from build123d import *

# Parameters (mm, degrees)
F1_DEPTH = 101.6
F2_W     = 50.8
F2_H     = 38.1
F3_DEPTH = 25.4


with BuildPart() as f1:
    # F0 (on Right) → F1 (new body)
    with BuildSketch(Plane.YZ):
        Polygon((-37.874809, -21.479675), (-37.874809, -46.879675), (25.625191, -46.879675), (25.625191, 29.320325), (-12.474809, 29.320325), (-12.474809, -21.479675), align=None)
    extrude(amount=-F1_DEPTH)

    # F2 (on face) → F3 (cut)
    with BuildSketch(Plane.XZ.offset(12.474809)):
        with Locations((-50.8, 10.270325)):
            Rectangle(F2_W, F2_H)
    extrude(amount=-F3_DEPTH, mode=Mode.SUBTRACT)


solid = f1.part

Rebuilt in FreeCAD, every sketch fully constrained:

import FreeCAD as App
import Part
import Sketcher
from FreeCAD import Vector
Q = App.Units.Quantity

doc = App.newDocument("Part")
params = doc.addObject("Spreadsheet::Sheet", "Params")
for row, (alias, value) in enumerate([
    ("sketch1_width", "1 in"),
    ("sketch1_height", "3 in"),
    ("sketch1_width2", "2.5 in"),
    ("pad1_length", "4 in"),
    ("sketch2_width", "2 in"),
    ("sketch2_height", "1.5 in"),
    ("pocket1_length", "1 in"),
], start=1):
    params.set(f"A{row}", alias)
    params.set(f"B{row}", "=" + value)
    params.setAlias(f"B{row}", alias)

body = doc.addObject("PartDesign::Body", "Body")

# Sketch on YZ plane
sketch1 = body.newObject("Sketcher::SketchObject", "Sketch")
sketch1.AttachmentSupport = (doc.getObject("YZ_Plane"), [""])
sketch1.MapMode = "FlatFace"
sketch1.addGeometry(Part.LineSegment(Vector(-38, -21, 0), Vector(-38, -47, 0)), False)
sketch1.addGeometry(Part.LineSegment(Vector(-38, -47, 0), Vector(26, -47, 0)), False)
sketch1.addGeometry(Part.LineSegment(Vector(26, -47, 0), Vector(26, 29, 0)), False)
sketch1.addGeometry(Part.LineSegment(Vector(26, 29, 0), Vector(-12, 29, 0)), False)
sketch1.addGeometry(Part.LineSegment(Vector(-12, 29, 0), Vector(-12, -21, 0)), False)
sketch1.addGeometry(Part.LineSegment(Vector(-12, -21, 0), Vector(-38, -21, 0)), False)
sketch1.addConstraint(Sketcher.Constraint("Coincident", 0, 2, 1, 1))
sketch1.addConstraint(Sketcher.Constraint("Coincident", 1, 2, 2, 1))
sketch1.addConstraint(Sketcher.Constraint("Coincident", 2, 2, 3, 1))
sketch1.addConstraint(Sketcher.Constraint("Coincident", 3, 2, 4, 1))
sketch1.addConstraint(Sketcher.Constraint("Coincident", 4, 2, 5, 1))
sketch1.addConstraint(Sketcher.Constraint("Coincident", 5, 2, 0, 1))
sketch1.addConstraint(Sketcher.Constraint("Vertical", 0))
sketch1.addConstraint(Sketcher.Constraint("Horizontal", 1))
sketch1.addConstraint(Sketcher.Constraint("Vertical", 2))
sketch1.addConstraint(Sketcher.Constraint("Horizontal", 3))
sketch1.addConstraint(Sketcher.Constraint("Vertical", 4))
sketch1.addConstraint(Sketcher.Constraint("Horizontal", 5))
sketch1.addConstraint(Sketcher.Constraint("Equal", 5, 0))
sketch1.addConstraint(Sketcher.Constraint("DistanceX", 5, 2, 5, 1, Q("1 in")))
sketch1.addConstraint(Sketcher.Constraint("DistanceY", 2, 1, 2, 2, Q("3 in")))
sketch1.addConstraint(Sketcher.Constraint("DistanceX", 1, 1, 1, 2, Q("2.5 in")))
sketch1.addConstraint(Sketcher.Constraint("DistanceX", 0, 2, -1, 1, 37.874809))
sketch1.addConstraint(Sketcher.Constraint("DistanceY", 0, 2, -1, 1, 46.879675))
sketch1.setExpression("Constraints[13]", "Params.sketch1_width")
sketch1.setExpression("Constraints[14]", "Params.sketch1_height")
sketch1.setExpression("Constraints[15]", "Params.sketch1_width2")
pad1 = body.newObject("PartDesign::Pad", "Pad")
pad1.Profile = sketch1
pad1.setExpression("Length", "Params.pad1_length")
pad1.Reversed = True

# Sketch on XZ plane
sketch2 = body.newObject("Sketcher::SketchObject", "Sketch001")
sketch2.AttachmentSupport = (doc.getObject("XZ_Plane"), [""])
sketch2.MapMode = "FlatFace"
sketch2.AttachmentOffset = App.Placement(Vector(0, 0, 12.474809), App.Rotation())
sketch2.addGeometry(Part.LineSegment(Vector(-76, 29, 0), Vector(-76, -9, 0)), False)
sketch2.addGeometry(Part.LineSegment(Vector(-76, -9, 0), Vector(-25, -9, 0)), False)
sketch2.addGeometry(Part.LineSegment(Vector(-25, -9, 0), Vector(-25, 29, 0)), False)
sketch2.addGeometry(Part.LineSegment(Vector(-25, 29, 0), Vector(-76, 29, 0)), False)
sketch2.addConstraint(Sketcher.Constraint("Coincident", 0, 2, 1, 1))
sketch2.addConstraint(Sketcher.Constraint("Coincident", 1, 2, 2, 1))
sketch2.addConstraint(Sketcher.Constraint("Coincident", 2, 2, 3, 1))
sketch2.addConstraint(Sketcher.Constraint("Coincident", 3, 2, 0, 1))
sketch2.addConstraint(Sketcher.Constraint("Vertical", 0))
sketch2.addConstraint(Sketcher.Constraint("Horizontal", 1))
sketch2.addConstraint(Sketcher.Constraint("Vertical", 2))
sketch2.addConstraint(Sketcher.Constraint("Horizontal", 3))
sketch2.addConstraint(Sketcher.Constraint("DistanceX", 1, 1, 1, 2, Q("2 in")))
sketch2.addConstraint(Sketcher.Constraint("DistanceY", 0, 2, 0, 1, Q("1.5 in")))
sketch2.addConstraint(Sketcher.Constraint("DistanceX", 0, 2, -1, 1, Q("3 in")))
sketch2.addConstraint(Sketcher.Constraint("DistanceY", 0, 2, -1, 1, 8.779675))
sketch2.setExpression("Constraints[8]", "Params.sketch2_width")
sketch2.setExpression("Constraints[9]", "Params.sketch2_height")
pocket1 = body.newObject("PartDesign::Pocket", "Pocket")
pocket1.Profile = sketch2
pocket1.setExpression("Length", "Params.pocket1_length")

doc.recompute()
